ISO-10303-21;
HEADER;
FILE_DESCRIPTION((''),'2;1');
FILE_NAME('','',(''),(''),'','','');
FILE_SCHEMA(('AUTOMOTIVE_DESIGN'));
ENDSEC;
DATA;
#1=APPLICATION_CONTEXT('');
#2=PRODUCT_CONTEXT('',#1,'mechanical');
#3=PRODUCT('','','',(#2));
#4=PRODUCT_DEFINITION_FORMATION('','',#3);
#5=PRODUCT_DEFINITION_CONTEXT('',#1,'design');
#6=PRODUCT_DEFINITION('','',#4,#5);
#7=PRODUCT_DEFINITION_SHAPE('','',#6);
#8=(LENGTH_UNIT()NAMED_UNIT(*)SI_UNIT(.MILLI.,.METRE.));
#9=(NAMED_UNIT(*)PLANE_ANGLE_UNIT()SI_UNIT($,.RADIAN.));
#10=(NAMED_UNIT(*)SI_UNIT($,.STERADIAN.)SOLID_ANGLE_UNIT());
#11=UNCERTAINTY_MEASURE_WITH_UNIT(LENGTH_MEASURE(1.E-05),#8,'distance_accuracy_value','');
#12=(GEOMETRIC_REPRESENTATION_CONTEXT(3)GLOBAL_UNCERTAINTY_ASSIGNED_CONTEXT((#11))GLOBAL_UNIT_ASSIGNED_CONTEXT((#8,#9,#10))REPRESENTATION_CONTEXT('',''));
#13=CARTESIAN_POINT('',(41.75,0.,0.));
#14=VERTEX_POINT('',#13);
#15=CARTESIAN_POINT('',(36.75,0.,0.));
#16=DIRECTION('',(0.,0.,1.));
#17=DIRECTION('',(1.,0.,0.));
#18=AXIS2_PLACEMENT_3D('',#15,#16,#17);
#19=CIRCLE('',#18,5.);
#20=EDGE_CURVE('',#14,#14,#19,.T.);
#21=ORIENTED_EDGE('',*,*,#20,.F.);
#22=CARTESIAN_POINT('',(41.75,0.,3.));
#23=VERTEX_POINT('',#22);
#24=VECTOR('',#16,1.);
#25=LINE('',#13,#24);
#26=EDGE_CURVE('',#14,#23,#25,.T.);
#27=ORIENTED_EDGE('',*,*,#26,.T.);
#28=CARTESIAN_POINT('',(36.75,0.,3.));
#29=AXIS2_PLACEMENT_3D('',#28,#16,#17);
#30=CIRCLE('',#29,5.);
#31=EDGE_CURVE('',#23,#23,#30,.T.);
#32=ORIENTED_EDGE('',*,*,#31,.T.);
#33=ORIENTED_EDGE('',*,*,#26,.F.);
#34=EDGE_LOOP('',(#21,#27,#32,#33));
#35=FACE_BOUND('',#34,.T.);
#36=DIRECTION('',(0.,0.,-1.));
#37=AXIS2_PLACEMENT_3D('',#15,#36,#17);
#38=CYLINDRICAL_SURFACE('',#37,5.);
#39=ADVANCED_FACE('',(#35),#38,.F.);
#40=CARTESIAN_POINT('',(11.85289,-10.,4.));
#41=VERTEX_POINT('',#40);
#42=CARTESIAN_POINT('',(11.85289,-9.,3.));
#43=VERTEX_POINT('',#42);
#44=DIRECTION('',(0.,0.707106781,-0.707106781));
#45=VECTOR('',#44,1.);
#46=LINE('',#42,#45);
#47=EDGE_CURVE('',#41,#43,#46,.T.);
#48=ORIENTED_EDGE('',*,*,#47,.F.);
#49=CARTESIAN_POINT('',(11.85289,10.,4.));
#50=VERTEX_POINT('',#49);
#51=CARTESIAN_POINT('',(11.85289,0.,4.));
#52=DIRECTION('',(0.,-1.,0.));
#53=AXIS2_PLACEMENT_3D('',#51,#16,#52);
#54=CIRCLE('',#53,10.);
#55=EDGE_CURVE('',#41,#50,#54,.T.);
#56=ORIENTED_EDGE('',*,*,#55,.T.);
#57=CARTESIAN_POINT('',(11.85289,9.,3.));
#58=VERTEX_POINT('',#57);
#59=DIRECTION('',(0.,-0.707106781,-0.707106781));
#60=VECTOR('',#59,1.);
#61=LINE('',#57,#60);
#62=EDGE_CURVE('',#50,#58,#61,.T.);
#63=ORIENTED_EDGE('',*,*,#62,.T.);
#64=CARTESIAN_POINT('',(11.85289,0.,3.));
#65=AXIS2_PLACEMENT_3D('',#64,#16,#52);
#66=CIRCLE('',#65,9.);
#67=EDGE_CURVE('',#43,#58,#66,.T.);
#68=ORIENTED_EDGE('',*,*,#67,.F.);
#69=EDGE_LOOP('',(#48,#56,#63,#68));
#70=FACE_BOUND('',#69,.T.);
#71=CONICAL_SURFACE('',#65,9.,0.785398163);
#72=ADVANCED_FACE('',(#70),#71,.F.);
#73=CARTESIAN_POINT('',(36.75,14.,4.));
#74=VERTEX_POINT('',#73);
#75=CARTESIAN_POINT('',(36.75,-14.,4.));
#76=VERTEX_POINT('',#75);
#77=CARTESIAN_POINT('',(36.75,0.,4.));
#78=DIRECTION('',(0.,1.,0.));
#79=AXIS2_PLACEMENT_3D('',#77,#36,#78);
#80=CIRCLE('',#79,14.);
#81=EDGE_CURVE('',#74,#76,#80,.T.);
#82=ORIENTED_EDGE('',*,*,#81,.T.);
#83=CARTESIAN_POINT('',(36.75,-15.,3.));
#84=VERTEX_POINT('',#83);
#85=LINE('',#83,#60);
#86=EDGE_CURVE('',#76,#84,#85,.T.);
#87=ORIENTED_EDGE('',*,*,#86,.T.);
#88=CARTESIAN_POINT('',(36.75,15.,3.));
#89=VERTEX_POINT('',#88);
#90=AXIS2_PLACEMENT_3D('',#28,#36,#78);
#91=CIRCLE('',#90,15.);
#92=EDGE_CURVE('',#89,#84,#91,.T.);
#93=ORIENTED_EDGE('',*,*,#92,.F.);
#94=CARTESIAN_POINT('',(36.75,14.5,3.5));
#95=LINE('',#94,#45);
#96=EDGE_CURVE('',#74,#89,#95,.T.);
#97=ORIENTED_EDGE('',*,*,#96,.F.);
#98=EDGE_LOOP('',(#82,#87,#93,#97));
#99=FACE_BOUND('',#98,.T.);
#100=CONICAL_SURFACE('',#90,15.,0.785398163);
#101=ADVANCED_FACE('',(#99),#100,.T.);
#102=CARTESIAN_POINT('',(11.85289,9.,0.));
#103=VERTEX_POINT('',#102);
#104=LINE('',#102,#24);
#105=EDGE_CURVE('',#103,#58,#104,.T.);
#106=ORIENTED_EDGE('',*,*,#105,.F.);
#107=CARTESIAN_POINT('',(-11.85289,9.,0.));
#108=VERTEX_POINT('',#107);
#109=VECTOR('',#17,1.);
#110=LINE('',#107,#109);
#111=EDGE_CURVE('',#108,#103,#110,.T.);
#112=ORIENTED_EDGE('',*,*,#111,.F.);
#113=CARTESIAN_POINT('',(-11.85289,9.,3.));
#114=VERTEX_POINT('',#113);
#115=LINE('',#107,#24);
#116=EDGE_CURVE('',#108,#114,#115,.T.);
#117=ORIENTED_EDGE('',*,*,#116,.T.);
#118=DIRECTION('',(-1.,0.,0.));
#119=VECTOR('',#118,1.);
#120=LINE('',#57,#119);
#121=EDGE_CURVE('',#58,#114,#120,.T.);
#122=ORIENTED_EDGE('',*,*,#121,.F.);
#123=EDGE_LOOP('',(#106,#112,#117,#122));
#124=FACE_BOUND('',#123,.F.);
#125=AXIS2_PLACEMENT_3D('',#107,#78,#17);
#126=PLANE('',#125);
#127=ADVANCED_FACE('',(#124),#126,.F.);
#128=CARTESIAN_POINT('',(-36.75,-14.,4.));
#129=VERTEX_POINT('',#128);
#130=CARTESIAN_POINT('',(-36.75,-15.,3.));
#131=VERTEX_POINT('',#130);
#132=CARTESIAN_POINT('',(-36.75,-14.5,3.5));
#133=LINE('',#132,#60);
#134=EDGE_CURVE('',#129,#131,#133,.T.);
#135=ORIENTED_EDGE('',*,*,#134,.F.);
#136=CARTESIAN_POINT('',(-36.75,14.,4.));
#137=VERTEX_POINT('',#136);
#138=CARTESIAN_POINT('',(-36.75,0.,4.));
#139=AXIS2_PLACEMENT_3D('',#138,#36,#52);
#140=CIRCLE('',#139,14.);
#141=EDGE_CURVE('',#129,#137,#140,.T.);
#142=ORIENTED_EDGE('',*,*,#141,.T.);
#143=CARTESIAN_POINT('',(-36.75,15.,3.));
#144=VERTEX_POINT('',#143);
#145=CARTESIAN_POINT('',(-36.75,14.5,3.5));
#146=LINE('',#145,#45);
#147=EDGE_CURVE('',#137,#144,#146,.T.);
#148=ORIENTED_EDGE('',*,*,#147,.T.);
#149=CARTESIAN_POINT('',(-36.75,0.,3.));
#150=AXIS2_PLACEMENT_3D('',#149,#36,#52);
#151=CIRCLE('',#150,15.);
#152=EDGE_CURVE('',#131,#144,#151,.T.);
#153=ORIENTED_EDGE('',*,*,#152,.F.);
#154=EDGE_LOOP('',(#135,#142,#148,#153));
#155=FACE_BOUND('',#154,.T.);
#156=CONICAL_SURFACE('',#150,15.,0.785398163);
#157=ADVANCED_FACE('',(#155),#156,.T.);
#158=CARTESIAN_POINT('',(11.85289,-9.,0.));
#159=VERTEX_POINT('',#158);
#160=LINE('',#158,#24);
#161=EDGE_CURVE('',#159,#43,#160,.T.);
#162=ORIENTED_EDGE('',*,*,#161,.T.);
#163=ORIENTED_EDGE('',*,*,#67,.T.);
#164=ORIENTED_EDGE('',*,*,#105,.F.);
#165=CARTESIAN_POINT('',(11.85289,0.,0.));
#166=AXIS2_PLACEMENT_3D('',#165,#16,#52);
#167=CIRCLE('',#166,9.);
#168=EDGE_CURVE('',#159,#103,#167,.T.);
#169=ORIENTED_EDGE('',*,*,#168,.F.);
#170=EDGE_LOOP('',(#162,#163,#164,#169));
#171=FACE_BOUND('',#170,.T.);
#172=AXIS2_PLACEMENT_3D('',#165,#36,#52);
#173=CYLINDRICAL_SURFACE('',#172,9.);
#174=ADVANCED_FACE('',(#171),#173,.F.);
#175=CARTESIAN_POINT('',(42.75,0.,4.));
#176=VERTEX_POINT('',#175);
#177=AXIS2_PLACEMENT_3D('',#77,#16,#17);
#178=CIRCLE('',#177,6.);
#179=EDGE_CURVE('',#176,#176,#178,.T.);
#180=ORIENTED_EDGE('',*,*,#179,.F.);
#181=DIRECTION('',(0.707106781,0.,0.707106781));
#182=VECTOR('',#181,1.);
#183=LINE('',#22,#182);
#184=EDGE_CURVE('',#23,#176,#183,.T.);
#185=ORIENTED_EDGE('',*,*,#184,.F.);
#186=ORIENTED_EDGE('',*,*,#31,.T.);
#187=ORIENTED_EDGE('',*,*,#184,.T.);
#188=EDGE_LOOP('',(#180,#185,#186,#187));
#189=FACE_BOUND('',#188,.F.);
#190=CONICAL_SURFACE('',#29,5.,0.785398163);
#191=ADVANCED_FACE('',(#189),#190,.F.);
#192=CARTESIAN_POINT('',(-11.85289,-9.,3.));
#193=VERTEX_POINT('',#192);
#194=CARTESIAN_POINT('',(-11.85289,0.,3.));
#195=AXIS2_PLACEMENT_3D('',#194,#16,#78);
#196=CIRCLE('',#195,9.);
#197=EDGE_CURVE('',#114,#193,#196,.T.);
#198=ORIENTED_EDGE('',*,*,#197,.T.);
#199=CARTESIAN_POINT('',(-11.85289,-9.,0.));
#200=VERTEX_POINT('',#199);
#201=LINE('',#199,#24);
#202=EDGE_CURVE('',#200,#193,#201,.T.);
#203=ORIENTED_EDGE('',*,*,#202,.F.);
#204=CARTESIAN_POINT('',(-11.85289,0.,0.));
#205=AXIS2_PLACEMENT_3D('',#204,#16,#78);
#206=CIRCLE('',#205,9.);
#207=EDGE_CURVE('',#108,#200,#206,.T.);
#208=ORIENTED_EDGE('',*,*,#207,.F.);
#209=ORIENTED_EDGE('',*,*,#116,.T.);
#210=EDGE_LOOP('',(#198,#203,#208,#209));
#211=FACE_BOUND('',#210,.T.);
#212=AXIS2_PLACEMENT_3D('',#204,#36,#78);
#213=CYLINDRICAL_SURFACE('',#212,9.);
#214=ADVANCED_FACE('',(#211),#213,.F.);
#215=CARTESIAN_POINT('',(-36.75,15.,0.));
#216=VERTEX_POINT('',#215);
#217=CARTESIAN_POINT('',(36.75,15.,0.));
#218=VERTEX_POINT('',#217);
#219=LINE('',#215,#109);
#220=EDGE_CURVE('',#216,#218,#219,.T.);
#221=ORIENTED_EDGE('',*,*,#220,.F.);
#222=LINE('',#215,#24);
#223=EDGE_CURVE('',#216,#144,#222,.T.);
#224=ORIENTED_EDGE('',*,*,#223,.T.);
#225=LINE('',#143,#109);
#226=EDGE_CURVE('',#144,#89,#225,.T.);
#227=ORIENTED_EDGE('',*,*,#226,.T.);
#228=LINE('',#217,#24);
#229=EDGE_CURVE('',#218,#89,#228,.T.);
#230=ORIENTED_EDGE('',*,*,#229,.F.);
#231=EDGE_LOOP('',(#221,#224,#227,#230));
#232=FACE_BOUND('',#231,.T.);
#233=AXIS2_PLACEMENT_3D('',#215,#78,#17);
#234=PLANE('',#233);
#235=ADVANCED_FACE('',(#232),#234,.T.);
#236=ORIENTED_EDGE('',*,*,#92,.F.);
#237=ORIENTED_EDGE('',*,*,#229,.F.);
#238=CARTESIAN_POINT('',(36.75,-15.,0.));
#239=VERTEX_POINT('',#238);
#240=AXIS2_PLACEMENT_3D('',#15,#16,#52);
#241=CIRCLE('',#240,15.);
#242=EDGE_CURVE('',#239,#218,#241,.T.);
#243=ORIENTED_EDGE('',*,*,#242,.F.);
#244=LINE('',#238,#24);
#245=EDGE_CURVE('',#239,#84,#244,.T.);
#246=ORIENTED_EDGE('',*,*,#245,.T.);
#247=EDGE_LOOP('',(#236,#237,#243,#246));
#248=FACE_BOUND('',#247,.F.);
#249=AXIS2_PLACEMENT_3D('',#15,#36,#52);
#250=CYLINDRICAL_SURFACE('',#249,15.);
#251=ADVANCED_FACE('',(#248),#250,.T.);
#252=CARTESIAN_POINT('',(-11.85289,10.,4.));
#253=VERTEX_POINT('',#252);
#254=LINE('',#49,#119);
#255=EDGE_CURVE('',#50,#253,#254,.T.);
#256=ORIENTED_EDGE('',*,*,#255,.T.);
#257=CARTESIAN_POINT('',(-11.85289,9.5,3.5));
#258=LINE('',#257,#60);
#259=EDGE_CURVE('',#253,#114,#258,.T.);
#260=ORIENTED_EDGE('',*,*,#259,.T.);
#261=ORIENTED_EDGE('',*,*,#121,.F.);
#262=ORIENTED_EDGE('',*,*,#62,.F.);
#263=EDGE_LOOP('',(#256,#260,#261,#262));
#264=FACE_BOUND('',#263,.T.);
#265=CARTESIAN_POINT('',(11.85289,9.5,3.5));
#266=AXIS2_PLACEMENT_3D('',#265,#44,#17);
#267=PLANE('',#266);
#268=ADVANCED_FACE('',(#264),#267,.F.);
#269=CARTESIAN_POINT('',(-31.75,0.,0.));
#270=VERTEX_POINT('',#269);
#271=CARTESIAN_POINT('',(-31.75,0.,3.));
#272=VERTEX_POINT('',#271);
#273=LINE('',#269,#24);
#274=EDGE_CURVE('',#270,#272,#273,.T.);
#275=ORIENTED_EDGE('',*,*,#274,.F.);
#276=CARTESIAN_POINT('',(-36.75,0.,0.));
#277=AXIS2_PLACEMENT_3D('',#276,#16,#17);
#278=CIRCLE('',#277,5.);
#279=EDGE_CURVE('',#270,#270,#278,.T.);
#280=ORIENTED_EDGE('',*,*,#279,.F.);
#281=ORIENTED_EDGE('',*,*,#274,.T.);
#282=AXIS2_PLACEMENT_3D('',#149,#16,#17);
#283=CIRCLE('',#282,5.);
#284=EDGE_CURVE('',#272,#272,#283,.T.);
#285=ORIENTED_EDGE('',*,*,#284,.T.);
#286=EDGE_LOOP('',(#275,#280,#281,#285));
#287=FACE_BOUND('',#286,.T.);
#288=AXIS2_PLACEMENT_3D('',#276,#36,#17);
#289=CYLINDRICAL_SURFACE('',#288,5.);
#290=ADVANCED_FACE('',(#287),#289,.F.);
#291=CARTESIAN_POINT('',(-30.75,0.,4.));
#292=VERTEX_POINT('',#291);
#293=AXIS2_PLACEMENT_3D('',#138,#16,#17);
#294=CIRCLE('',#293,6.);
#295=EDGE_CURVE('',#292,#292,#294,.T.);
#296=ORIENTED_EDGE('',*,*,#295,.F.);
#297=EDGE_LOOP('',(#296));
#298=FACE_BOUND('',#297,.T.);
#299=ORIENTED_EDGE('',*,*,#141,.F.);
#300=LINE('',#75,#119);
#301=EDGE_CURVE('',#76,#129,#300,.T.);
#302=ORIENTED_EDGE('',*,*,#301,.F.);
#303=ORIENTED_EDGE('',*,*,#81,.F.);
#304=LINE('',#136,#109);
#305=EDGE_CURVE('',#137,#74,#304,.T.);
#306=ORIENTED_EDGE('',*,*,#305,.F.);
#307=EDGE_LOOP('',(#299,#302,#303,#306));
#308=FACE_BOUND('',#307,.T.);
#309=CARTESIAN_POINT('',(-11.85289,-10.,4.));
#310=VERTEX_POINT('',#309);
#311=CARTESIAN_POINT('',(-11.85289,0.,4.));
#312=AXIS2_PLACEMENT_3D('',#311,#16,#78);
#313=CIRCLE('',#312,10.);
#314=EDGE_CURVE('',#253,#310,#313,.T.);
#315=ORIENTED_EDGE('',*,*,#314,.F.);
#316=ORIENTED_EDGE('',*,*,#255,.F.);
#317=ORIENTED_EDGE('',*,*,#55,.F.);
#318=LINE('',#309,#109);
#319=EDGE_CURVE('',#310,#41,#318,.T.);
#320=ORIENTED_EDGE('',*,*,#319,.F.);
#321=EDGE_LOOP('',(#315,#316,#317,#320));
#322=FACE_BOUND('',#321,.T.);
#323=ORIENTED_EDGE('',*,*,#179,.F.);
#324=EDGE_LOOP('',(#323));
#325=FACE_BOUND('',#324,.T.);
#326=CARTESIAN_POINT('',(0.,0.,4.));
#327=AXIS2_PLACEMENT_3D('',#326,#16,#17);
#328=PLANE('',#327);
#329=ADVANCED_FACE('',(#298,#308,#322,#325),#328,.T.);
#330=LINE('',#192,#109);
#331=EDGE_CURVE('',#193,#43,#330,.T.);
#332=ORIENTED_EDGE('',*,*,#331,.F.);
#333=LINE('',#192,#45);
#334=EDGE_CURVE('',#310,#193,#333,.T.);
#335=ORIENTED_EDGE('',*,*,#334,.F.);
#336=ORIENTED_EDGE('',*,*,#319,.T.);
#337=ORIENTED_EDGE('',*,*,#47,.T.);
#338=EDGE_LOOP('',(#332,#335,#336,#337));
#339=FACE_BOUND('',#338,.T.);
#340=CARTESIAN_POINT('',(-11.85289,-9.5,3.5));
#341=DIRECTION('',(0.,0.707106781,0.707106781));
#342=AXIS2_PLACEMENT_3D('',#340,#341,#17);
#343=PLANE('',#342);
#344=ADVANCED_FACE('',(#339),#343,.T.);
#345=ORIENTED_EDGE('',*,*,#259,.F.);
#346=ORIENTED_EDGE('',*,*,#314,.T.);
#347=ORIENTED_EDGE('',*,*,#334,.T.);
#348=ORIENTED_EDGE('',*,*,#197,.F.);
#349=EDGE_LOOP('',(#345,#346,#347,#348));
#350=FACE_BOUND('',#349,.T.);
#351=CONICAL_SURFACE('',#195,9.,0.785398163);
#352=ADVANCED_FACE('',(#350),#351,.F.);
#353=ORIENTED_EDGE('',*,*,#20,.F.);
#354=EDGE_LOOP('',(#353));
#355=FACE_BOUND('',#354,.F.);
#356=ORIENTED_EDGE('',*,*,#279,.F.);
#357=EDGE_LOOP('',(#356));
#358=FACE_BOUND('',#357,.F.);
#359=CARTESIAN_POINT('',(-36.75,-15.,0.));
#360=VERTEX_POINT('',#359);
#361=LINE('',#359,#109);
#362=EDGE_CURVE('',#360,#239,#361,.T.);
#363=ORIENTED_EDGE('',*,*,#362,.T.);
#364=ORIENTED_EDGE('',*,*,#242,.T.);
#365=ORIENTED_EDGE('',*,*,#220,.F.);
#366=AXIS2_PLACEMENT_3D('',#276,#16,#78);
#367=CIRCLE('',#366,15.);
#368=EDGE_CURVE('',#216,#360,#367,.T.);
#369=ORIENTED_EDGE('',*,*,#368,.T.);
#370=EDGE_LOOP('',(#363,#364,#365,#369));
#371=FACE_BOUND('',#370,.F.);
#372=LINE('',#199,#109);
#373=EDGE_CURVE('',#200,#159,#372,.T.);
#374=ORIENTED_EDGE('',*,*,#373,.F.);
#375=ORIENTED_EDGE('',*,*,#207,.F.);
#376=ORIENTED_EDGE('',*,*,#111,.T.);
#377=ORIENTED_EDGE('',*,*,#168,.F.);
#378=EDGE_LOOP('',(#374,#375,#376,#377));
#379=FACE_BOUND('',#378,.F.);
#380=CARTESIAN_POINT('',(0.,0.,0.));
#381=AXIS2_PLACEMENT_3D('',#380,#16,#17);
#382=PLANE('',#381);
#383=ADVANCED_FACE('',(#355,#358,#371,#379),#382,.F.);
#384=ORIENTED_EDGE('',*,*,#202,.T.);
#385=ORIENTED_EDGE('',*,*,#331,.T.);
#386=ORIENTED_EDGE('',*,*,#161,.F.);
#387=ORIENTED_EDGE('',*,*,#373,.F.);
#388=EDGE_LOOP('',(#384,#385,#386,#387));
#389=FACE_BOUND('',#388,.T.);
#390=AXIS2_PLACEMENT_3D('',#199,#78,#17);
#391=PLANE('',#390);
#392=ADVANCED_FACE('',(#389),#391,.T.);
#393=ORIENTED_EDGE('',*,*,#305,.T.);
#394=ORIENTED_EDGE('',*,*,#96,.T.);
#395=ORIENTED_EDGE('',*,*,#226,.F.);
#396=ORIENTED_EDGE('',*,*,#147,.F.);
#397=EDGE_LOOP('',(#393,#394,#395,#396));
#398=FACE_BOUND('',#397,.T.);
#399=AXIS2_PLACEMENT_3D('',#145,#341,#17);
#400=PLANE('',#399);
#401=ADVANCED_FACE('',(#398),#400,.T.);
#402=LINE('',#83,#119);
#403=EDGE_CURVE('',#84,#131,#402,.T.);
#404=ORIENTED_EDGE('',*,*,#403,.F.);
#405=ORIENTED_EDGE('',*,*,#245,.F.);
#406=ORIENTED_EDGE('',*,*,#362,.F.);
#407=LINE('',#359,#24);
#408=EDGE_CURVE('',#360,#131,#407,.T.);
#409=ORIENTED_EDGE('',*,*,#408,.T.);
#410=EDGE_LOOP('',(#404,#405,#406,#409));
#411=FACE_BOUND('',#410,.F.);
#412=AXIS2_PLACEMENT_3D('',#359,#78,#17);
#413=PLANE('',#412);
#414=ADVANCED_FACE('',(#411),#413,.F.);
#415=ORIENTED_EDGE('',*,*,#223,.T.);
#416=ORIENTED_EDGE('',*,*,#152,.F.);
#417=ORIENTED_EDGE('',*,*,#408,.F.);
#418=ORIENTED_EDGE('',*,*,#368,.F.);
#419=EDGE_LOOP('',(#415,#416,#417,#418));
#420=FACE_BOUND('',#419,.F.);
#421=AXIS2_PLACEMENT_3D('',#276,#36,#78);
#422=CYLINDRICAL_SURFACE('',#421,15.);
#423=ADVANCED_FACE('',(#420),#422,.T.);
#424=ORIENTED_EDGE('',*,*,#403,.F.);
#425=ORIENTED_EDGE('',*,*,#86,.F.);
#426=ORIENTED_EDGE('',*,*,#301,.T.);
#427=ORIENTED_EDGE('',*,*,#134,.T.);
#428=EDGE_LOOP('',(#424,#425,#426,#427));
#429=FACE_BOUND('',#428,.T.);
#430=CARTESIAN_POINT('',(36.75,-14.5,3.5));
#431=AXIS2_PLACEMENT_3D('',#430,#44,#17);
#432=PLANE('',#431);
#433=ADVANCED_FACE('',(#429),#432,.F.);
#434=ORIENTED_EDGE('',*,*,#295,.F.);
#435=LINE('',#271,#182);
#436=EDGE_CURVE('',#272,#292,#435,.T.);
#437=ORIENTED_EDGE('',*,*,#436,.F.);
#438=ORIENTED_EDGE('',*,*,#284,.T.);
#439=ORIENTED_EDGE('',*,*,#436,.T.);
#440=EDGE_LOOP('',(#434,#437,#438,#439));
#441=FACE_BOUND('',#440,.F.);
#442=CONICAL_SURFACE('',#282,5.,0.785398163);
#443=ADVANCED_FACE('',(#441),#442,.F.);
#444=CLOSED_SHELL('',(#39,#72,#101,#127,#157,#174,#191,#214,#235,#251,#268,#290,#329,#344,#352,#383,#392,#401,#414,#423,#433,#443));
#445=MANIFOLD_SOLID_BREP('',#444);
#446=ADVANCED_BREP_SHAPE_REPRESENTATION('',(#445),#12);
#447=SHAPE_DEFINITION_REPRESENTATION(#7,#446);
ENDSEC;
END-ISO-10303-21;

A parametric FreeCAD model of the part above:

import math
import FreeCAD as App
import Part
import Sketcher
from FreeCAD import Vector


def edges_at(feature, points):
    """Names of the edges that pass closest to the given points."""
    edges = feature.Shape.Edges
    near = lambda p: min(range(len(edges)), key=lambda i: edges[i].distToShape(Part.Vertex(*p))[0])
    return sorted({f"Edge{near(p) + 1}" for p in points})

doc = App.newDocument("Part")
params = doc.addObject("Spreadsheet::Sheet", "Params")
for row, (alias, value) in enumerate([
    ("sketch1_diameter", "10 mm"),
    ("sketch1_radius", "15 mm"),
    ("sketch1_radius2", "9 mm"),
    ("sketch1_width", "73.5 mm"),
    ("pad1_length", "4 mm"),
    ("chamfer_size", "1 mm"),
    ("chamfer2_size", "1 mm"),
    ("chamfer3_size", "1 mm"),
], start=1):
    params.set(f"A{row}", alias)
    params.set(f"B{row}", "=" + value)
    params.setAlias(f"B{row}", alias)

body = doc.addObject("PartDesign::Body", "Body")

# Sketch on XY plane
sketch1 = body.newObject("Sketcher::SketchObject", "Sketch")
sketch1.AttachmentSupport = (doc.getObject("XY_Plane"), [""])
sketch1.MapMode = "FlatFace"
sketch1.addGeometry(Part.ArcOfCircle(Part.Circle(Vector(-37, 0, 0), Vector(0, 0, 1), 15), math.radians(90), math.radians(270)), False)
sketch1.addGeometry(Part.LineSegment(Vector(-37, -15, 0), Vector(37, -15, 0)), False)
sketch1.addGeometry(Part.ArcOfCircle(Part.Circle(Vector(37, 0, 0), Vector(0, 0, 1), 15), math.radians(-90), math.radians(90)), False)
sketch1.addGeometry(Part.LineSegment(Vector(37, 15, 0), Vector(-37, 15, 0)), False)
sketch1.addGeometry(Part.Circle(Vector(-37, 0, 0), Vector(0, 0, 1), 5), False)
sketch1.addGeometry(Part.ArcOfCircle(Part.Circle(Vector(-12, 0, 0), Vector(0, 0, 1), 9), math.radians(90), math.radians(270)), False)
sketch1.addGeometry(Part.LineSegment(Vector(-12, 9, 0), Vector(12, 9, 0)), False)
sketch1.addGeometry(Part.ArcOfCircle(Part.Circle(Vector(12, 0, 0), Vector(0, 0, 1), 9), math.radians(-90), math.radians(90)), False)
sketch1.addGeometry(Part.LineSegment(Vector(12, -9, 0), Vector(-12, -9, 0)), False)
sketch1.addGeometry(Part.Circle(Vector(37, 0, 0), Vector(0, 0, 1), 5), False)
sketch1.addConstraint(Sketcher.Constraint("Tangent", 0, 2, 1, 1))
sketch1.addConstraint(Sketcher.Constraint("Tangent", 1, 2, 2, 1))
sketch1.addConstraint(Sketcher.Constraint("Tangent", 2, 2, 3, 1))
sketch1.addConstraint(Sketcher.Constraint("Tangent", 3, 2, 0, 1))
sketch1.addConstraint(Sketcher.Constraint("Tangent", 5, 1, 6, 1))
sketch1.addConstraint(Sketcher.Constraint("Tangent", 6, 2, 7, 2))
sketch1.addConstraint(Sketcher.Constraint("Tangent", 7, 1, 8, 1))
sketch1.addConstraint(Sketcher.Constraint("Tangent", 8, 2, 5, 2))
sketch1.addConstraint(Sketcher.Constraint("Horizontal", 1))
sketch1.addConstraint(Sketcher.Constraint("Horizontal", 3))
sketch1.addConstraint(Sketcher.Constraint("Horizontal", 6))
sketch1.addConstraint(Sketcher.Constraint("Horizontal", 8))
sketch1.addConstraint(Sketcher.Constraint("Coincident", 4, 3, 0, 3))
sketch1.addConstraint(Sketcher.Constraint("Coincident", 9, 3, 2, 3))
sketch1.addConstraint(Sketcher.Constraint("Equal", 4, 9))
sketch1.addConstraint(Sketcher.Constraint("Symmetric", 0, 3, 2, 3, -1, 1))
sketch1.addConstraint(Sketcher.Constraint("Symmetric", 5, 3, 7, 3, -1, 1))
sketch1.addConstraint(Sketcher.Constraint("Diameter", 4, 10.0))
sketch1.addConstraint(Sketcher.Constraint("Radius", 0, 15.0))
sketch1.addConstraint(Sketcher.Constraint("Radius", 5, 9.0))
sketch1.addConstraint(Sketcher.Constraint("DistanceX", 1, 1, 1, 2, 73.5))
sketch1.addConstraint(Sketcher.Constraint("DistanceX", 6, 1, 6, 2, 23.70578))
sketch1.setExpression("Constraints[17]", "Params.sketch1_diameter")
sketch1.setExpression("Constraints[18]", "Params.sketch1_radius")
sketch1.setExpression("Constraints[19]", "Params.sketch1_radius2")
sketch1.setExpression("Constraints[20]", "Params.sketch1_width")
pad1 = body.newObject("PartDesign::Pad", "Pad")
pad1.Profile = sketch1
pad1.setExpression("Length", "Params.pad1_length")
doc.recompute()

chamfer = body.newObject("PartDesign::Chamfer", "Chamfer")
chamfer.Base = (pad1, edges_at(pad1, [(-41.75, 0, 4), (31.75, 0, 4)]))
chamfer.setExpression("Size", "Params.chamfer_size")
doc.recompute()

chamfer2 = body.newObject("PartDesign::Chamfer", "Chamfer001")
chamfer2.Base = (chamfer, edges_at(chamfer, [
    (0, 15, 4),
    (51.75, 0, 4),
    (0, -15, 4),
    (-51.75, 0, 4),
]))
chamfer2.setExpression("Size", "Params.chamfer2_size")
doc.recompute()

chamfer3 = body.newObject("PartDesign::Chamfer", "Chamfer002")
chamfer3.Base = (chamfer2, edges_at(chamfer2, [
    (20.853, 0, 4),
    (0, -9, 4),
    (-20.853, 0, 4),
    (0, 9, 4),
]))
chamfer3.setExpression("Size", "Params.chamfer3_size")

doc.recompute()
